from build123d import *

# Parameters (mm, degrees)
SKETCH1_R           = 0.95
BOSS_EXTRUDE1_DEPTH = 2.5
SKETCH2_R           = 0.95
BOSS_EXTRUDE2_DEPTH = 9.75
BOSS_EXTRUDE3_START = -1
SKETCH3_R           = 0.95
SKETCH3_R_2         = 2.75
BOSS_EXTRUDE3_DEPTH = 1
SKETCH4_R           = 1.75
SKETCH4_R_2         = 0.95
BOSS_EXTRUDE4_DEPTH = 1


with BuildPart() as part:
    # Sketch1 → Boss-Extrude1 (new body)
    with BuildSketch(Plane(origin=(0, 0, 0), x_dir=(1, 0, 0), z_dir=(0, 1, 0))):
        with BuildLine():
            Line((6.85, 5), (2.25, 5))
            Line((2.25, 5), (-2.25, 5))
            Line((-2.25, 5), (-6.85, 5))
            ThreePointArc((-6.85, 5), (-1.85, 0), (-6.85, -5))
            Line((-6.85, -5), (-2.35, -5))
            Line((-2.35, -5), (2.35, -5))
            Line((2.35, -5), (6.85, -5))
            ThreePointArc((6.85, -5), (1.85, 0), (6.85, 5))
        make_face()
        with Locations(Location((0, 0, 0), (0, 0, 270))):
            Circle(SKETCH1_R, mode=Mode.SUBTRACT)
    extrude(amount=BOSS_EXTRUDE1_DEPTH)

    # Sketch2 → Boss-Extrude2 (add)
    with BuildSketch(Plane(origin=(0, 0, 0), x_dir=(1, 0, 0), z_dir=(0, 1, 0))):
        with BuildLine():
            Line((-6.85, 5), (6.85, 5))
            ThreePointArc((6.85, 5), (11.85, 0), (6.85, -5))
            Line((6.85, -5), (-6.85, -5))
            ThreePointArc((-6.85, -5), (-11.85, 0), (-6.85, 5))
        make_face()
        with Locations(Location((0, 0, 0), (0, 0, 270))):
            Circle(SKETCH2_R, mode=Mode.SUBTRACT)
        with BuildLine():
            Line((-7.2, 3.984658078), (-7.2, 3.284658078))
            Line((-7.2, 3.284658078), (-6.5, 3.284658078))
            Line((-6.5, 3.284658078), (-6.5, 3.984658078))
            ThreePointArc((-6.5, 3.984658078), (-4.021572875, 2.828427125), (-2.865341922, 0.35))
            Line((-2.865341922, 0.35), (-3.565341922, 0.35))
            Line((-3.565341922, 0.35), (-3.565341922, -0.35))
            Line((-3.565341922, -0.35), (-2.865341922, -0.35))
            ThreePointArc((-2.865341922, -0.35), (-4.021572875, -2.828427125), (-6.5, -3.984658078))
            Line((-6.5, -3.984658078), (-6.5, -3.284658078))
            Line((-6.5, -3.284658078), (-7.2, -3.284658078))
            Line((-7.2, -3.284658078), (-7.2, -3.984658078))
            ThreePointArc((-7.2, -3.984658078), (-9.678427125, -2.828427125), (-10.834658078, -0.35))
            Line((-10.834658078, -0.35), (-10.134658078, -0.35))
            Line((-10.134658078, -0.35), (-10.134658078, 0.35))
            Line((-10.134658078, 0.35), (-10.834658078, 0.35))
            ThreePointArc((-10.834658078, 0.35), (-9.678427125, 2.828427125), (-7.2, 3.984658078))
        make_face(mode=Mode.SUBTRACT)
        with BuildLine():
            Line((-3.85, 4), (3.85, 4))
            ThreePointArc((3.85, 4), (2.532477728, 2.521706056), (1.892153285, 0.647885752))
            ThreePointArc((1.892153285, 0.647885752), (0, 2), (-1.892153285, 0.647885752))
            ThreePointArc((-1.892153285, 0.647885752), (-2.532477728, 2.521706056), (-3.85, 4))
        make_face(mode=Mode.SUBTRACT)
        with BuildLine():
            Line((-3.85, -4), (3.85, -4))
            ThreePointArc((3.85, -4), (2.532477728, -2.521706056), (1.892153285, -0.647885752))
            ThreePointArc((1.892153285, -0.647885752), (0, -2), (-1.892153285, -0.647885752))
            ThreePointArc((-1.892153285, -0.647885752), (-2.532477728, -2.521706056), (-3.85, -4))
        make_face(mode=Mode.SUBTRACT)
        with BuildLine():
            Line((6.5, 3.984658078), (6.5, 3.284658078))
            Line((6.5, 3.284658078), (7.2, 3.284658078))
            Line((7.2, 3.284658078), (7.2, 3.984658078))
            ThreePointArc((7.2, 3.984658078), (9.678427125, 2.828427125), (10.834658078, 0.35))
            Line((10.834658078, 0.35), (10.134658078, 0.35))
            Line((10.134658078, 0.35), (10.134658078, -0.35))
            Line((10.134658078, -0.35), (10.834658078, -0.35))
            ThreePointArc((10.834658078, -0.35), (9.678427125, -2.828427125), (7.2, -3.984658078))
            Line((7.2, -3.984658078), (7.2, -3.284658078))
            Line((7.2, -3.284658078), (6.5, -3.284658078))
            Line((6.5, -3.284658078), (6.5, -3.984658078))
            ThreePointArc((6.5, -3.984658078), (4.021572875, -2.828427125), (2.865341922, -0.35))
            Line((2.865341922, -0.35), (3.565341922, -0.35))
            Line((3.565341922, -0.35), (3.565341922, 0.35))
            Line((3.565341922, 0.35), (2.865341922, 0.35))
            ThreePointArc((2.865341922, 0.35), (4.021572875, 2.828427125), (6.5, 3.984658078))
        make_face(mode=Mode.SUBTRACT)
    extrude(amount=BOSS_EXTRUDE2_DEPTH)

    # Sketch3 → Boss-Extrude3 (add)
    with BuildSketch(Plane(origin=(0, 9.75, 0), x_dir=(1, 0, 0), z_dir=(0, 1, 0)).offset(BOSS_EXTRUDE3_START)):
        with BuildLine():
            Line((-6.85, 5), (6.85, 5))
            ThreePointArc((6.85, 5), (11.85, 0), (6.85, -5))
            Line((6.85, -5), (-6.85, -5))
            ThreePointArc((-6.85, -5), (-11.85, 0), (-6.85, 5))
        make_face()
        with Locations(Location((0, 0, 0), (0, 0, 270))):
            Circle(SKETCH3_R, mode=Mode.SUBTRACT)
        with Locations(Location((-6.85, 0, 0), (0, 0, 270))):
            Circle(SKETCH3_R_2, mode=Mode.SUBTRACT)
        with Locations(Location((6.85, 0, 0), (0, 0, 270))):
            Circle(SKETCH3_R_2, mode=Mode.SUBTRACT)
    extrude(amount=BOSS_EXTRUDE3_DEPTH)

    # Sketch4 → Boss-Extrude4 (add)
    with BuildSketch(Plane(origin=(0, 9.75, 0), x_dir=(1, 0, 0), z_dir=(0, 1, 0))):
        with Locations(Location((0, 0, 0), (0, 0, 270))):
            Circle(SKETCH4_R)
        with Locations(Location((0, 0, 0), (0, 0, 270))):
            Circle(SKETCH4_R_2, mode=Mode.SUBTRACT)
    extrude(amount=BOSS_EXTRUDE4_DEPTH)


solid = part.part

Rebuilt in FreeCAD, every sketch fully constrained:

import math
import FreeCAD as App
import Part
import Sketcher
from FreeCAD import Vector
Q = App.Units.Quantity

doc = App.newDocument("Part")
body = doc.addObject("PartDesign::Body", "Body")

# Sketch on XZ plane
sketch1 = body.newObject("Sketcher::SketchObject", "Sketch")
sketch1.AttachmentSupport = (doc.getObject("XZ_Plane"), [""])
sketch1.MapMode = "FlatFace"
sketch1.addGeometry(Part.LineSegment(Vector(6.8, -5, 0), Vector(-6.8, -5, 0)), False)
sketch1.addGeometry(Part.ArcOfCircle(Part.Circle(Vector(-6.8, 0, 0), Vector(0, 0, 1), 5), math.radians(-90), math.radians(90)), False)
sketch1.addGeometry(Part.LineSegment(Vector(-6.8, 5, 0), Vector(6.8, 5, 0)), False)
sketch1.addGeometry(Part.ArcOfCircle(Part.Circle(Vector(6.8, 0, 0), Vector(0, 0, 1), 5), math.radians(90), math.radians(270)), False)
sketch1.addGeometry(Part.Circle(Vector(0, 0, 0), Vector(0, 0, 1), 0.9), False)
sketch1.addConstraint(Sketcher.Constraint("Tangent", 0, 2, 1, 1))
sketch1.addConstraint(Sketcher.Constraint("Tangent", 1, 2, 2, 1))
sketch1.addConstraint(Sketcher.Constraint("Tangent", 2, 2, 3, 1))
sketch1.addConstraint(Sketcher.Constraint("Tangent", 3, 2, 0, 1))
sketch1.addConstraint(Sketcher.Constraint("Horizontal", 0))
sketch1.addConstraint(Sketcher.Constraint("Horizontal", 2))
sketch1.addConstraint(Sketcher.Constraint("Coincident", 4, 3, -1, 1))
sketch1.addConstraint(Sketcher.Constraint("Symmetric", 1, 3, 3, 3, -1, 1))
sketch1.addConstraint(Sketcher.Constraint("Radius", 1, Q("5 mm")))
sketch1.addConstraint(Sketcher.Constraint("Diameter", 4, Q("1.9 mm")))
sketch1.addConstraint(Sketcher.Constraint("DistanceX", 0, 2, 0, 1, Q("13.7 mm")))
pad1 = body.newObject("PartDesign::Pad", "Pad")
pad1.Profile = sketch1
pad1.Length = 2.5
pad1.Reversed = True

# Sketch on XZ plane
sketch2 = body.newObject("Sketcher::SketchObject", "Sketch001")
sketch2.AttachmentSupport = (doc.getObject("XZ_Plane"), [""])
sketch2.MapMode = "FlatFace"
sketch2.addGeometry(Part.LineSegment(Vector(6.8, -5, 0), Vector(-6.8, -5, 0)), False)
sketch2.addGeometry(Part.ArcOfCircle(Part.Circle(Vector(-6.8, 0, 0), Vector(0, 0, 1), 5), math.radians(90), math.radians(270)), False)
sketch2.addGeometry(Part.LineSegment(Vector(-6.8, 5, 0), Vector(6.8, 5, 0)), False)
sketch2.addGeometry(Part.ArcOfCircle(Part.Circle(Vector(6.8, 0, 0), Vector(0, 0, 1), 5), math.radians(-90), math.radians(90)), False)
sketch2.addGeometry(Part.ArcOfCircle(Part.Circle(Vector(-6.8, 0, 0), Vector(0, 0, 1), 5), math.radians(7), math.radians(53)), False)
sketch2.addGeometry(Part.ArcOfCircle(Part.Circle(Vector(0, 0, 0), Vector(0, 0, 1), 2), math.radians(19), math.radians(161)), False)
sketch2.addGeometry(Part.ArcOfCircle(Part.Circle(Vector(6.8, 0, 0), Vector(0, 0, 1), 5), math.radians(127), math.radians(173)), False)
sketch2.addGeometry(Part.LineSegment(Vector(3.9, 4, 0), Vector(-3.9, 4, 0)), False)
sketch2.addGeometry(Part.LineSegment(Vector(6.5, -4, 0), Vector(6.5, -3.3, 0)), False)
sketch2.addGeometry(Part.LineSegment(Vector(6.5, -3.3, 0), Vector(7.2, -3.3, 0)), False)
sketch2.addGeometry(Part.LineSegment(Vector(7.2, -3.3, 0), Vector(7.2, -4, 0)), False)
sketch2.addGeometry(Part.ArcOfCircle(Part.Circle(Vector(6.9, 0, 0), Vector(0, 0, 1), 4), math.radians(-85), math.radians(-5)), False)
sketch2.addGeometry(Part.LineSegment(Vector(10.8, -0.3, 0), Vector(10.1, -0.3, 0)), False)
sketch2.addGeometry(Part.LineSegment(Vector(10.1, -0.3, 0), Vector(10.1, 0.3, 0)), False)
sketch2.addGeometry(Part.LineSegment(Vector(10.1, 0.3, 0), Vector(10.8, 0.3, 0)), False)
sketch2.addGeometry(Part.ArcOfCircle(Part.Circle(Vector(6.9, 0, 0), Vector(0, 0, 1), 4), math.radians(5), math.radians(85)), False)
sketch2.addGeometry(Part.LineSegment(Vector(7.2, 4, 0), Vector(7.2, 3.3, 0)), False)
sketch2.addGeometry(Part.LineSegment(Vector(7.2, 3.3, 0), Vector(6.5, 3.3, 0)), False)
sketch2.addGeometry(Part.LineSegment(Vector(6.5, 3.3, 0), Vector(6.5, 4, 0)), False)
sketch2.addGeometry(Part.ArcOfCircle(Part.Circle(Vector(6.8, 0, 0), Vector(0, 0, 1), 4), math.radians(95), math.radians(175)), False)
sketch2.addGeometry(Part.LineSegment(Vector(2.9, 0.3, 0), Vector(3.6, 0.3, 0)), False)
sketch2.addGeometry(Part.LineSegment(Vector(3.6, 0.3, 0), Vector(3.6, -0.3, 0)), False)
sketch2.addGeometry(Part.LineSegment(Vector(3.6, -0.3, 0), Vector(2.9, -0.3, 0)), False)
sketch2.addGeometry(Part.ArcOfCircle(Part.Circle(Vector(6.8, 0, 0), Vector(0, 0, 1), 4), math.radians(-175), math.radians(-95)), False)
sketch2.addGeometry(Part.Circle(Vector(0, 0, 0), Vector(0, 0, 1), 0.9), False)
sketch2.addGeometry(Part.LineSegment(Vector(-7.2, -4, 0), Vector(-7.2, -3.3, 0)), False)
sketch2.addGeometry(Part.LineSegment(Vector(-7.2, -3.3, 0), Vector(-6.5, -3.3, 0)), False)
sketch2.addGeometry(Part.LineSegment(Vector(-6.5, -3.3, 0), Vector(-6.5, -4, 0)), False)
sketch2.addGeometry(Part.ArcOfCircle(Part.Circle(Vector(-6.8, 0, 0), Vector(0, 0, 1), 4), math.radians(-85), math.radians(-5)), False)
sketch2.addGeometry(Part.LineSegment(Vector(-2.9, -0.3, 0), Vector(-3.6, -0.3, 0)), False)
sketch2.addGeometry(Part.LineSegment(Vector(-3.6, -0.3, 0), Vector(-3.6, 0.3, 0)), False)
sketch2.addGeometry(Part.LineSegment(Vector(-3.6, 0.3, 0), Vector(-2.9, 0.3, 0)), False)
sketch2.addGeometry(Part.ArcOfCircle(Part.Circle(Vector(-6.8, 0, 0), Vector(0, 0, 1), 4), math.radians(5), math.radians(85)), False)
sketch2.addGeometry(Part.LineSegment(Vector(-6.5, 4, 0), Vector(-6.5, 3.3, 0)), False)
sketch2.addGeometry(Part.LineSegment(Vector(-6.5, 3.3, 0), Vector(-7.2, 3.3, 0)), False)
sketch2.addGeometry(Part.LineSegment(Vector(-7.2, 3.3, 0), Vector(-7.2, 4, 0)), False)
sketch2.addGeometry(Part.ArcOfCircle(Part.Circle(Vector(-6.9, 0, 0), Vector(0, 0, 1), 4), math.radians(95), math.radians(175)), False)
sketch2.addGeometry(Part.LineSegment(Vector(-10.8, 0.3, 0), Vector(-10.1, 0.3, 0)), False)
sketch2.addGeometry(Part.LineSegment(Vector(-10.1, 0.3, 0), Vector(-10.1, -0.3, 0)), False)
sketch2.addGeometry(Part.LineSegment(Vector(-10.1, -0.3, 0), Vector(-10.8, -0.3, 0)), False)
sketch2.addGeometry(Part.ArcOfCircle(Part.Circle(Vector(-6.9, 0, 0), Vector(0, 0, 1), 4), math.radians(-175), math.radians(-95)), False)
sketch2.addGeometry(Part.LineSegment(Vector(-3.9, -4, 0), Vector(3.9, -4, 0)), False)
sketch2.addGeometry(Part.ArcOfCircle(Part.Circle(Vector(6.8, 0, 0), Vector(0, 0, 1), 5), math.radians(-173), math.radians(-127)), False)
sketch2.addGeometry(Part.ArcOfCircle(Part.Circle(Vector(0, 0, 0), Vector(0, 0, 1), 2), math.radians(-161), math.radians(-19)), False)
sketch2.addGeometry(Part.ArcOfCircle(Part.Circle(Vector(-6.8, 0, 0), Vector(0, 0, 1), 5), math.radians(-53), math.radians(-7)), False)
sketch2.addConstraint(Sketcher.Constraint("Tangent", 0, 2, 1, 2))
sketch2.addConstraint(Sketcher.Constraint("Tangent", 1, 1, 2, 1))
sketch2.addConstraint(Sketcher.Constraint("Tangent", 2, 2, 3, 2))
sketch2.addConstraint(Sketcher.Constraint("Tangent", 3, 1, 0, 1))
sketch2.addConstraint(Sketcher.Constraint("Coincident", 4, 1, 5, 2))
sketch2.addConstraint(Sketcher.Constraint("Coincident", 5, 1, 6, 2))
sketch2.addConstraint(Sketcher.Constraint("Coincident", 6, 1, 7, 1))
sketch2.addConstraint(Sketcher.Constraint("Coincident", 7, 2, 4, 2))
sketch2.addConstraint(Sketcher.Constraint("Coincident", 8, 2, 9, 1))
sketch2.addConstraint(Sketcher.Constraint("Coincident", 9, 2, 10, 1))
sketch2.addConstraint(Sketcher.Constraint("Coincident", 10, 2, 11, 1))
sketch2.addConstraint(Sketcher.Constraint("Coincident", 11, 2, 12, 1))
sketch2.addConstraint(Sketcher.Constraint("Coincident", 12, 2, 13, 1))
sketch2.addConstraint(Sketcher.Constraint("Coincident", 13, 2, 14, 1))
sketch2.addConstraint(Sketcher.Constraint("Coincident", 14, 2, 15, 1))
sketch2.addConstraint(Sketcher.Constraint("Coincident", 15, 2, 16, 1))
sketch2.addConstraint(Sketcher.Constraint("Coincident", 16, 2, 17, 1))
sketch2.addConstraint(Sketcher.Constraint("Coincident", 17, 2, 18, 1))
sketch2.addConstraint(Sketcher.Constraint("Coincident", 18, 2, 19, 1))
sketch2.addConstraint(Sketcher.Constraint("Coincident", 19, 2, 20, 1))
sketch2.addConstraint(Sketcher.Constraint("Coincident", 20, 2, 21, 1))
sketch2.addConstraint(Sketcher.Constraint("Coincident", 21, 2, 22, 1))
sketch2.addConstraint(Sketcher.Constraint("Coincident", 22, 2, 23, 1))
sketch2.addConstraint(Sketcher.Constraint("Coincident", 23, 2, 8, 1))
sketch2.addConstraint(Sketcher.Constraint("Coincident", 25, 2, 26, 1))
sketch2.addConstraint(Sketcher.Constraint("Coincident", 26, 2, 27, 1))
sketch2.addConstraint(Sketcher.Constraint("Coincident", 27, 2, 28, 1))
sketch2.addConstraint(Sketcher.Constraint("Coincident", 28, 2, 29, 1))
sketch2.addConstraint(Sketcher.Constraint("Coincident", 29, 2, 30, 1))
sketch2.addConstraint(Sketcher.Constraint("Coincident", 30, 2, 31, 1))
sketch2.addConstraint(Sketcher.Constraint("Coincident", 31, 2, 32, 1))
sketch2.addConstraint(Sketcher.Constraint("Coincident", 32, 2, 33, 1))
sketch2.addConstraint(Sketcher.Constraint("Coincident", 33, 2, 34, 1))
sketch2.addConstraint(Sketcher.Constraint("Coincident", 34, 2, 35, 1))
sketch2.addConstraint(Sketcher.Constraint("Coincident", 35, 2, 36, 1))
sketch2.addConstraint(Sketcher.Constraint("Coincident", 36, 2, 37, 1))
sketch2.addConstraint(Sketcher.Constraint("Coincident", 37, 2, 38, 1))
sketch2.addConstraint(Sketcher.Constraint("Coincident", 38, 2, 39, 1))
sketch2.addConstraint(Sketcher.Constraint("Coincident", 39, 2, 40, 1))
sketch2.addConstraint(Sketcher.Constraint("Coincident", 40, 2, 25, 1))
sketch2.addConstraint(Sketcher.Constraint("Coincident", 41, 2, 42, 2))
sketch2.addConstraint(Sketcher.Constraint("Coincident", 42, 1, 43, 2))
sketch2.addConstraint(Sketcher.Constraint("Coincident", 43, 1, 44, 2))
sketch2.addConstraint(Sketcher.Constraint("Coincident", 44, 1, 41, 1))
sketch2.addConstraint(Sketcher.Constraint("Horizontal", 0))
sketch2.addConstraint(Sketcher.Constraint("Horizontal", 2))
sketch2.addConstraint(Sketcher.Constraint("Horizontal", 7))
sketch2.addConstraint(Sketcher.Constraint("Vertical", 8))
sketch2.addConstraint(Sketcher.Constraint("Horizontal", 9))
sketch2.addConstraint(Sketcher.Constraint("Vertical", 10))
sketch2.addConstraint(Sketcher.Constraint("Horizontal", 12))
sketch2.addConstraint(Sketcher.Constraint("Vertical", 13))
sketch2.addConstraint(Sketcher.Constraint("Horizontal", 14))
sketch2.addConstraint(Sketcher.Constraint("Vertical", 16))
sketch2.addConstraint(Sketcher.Constraint("Horizontal", 17))
sketch2.addConstraint(Sketcher.Constraint("Vertical", 18))
sketch2.addConstraint(Sketcher.Constraint("Horizontal", 20))
sketch2.addConstraint(Sketcher.Constraint("Vertical", 21))
sketch2.addConstraint(Sketcher.Constraint("Horizontal", 22))
sketch2.addConstraint(Sketcher.Constraint("Vertical", 25))
sketch2.addConstraint(Sketcher.Constraint("Horizontal", 26))
sketch2.addConstraint(Sketcher.Constraint("Vertical", 27))
sketch2.addConstraint(Sketcher.Constraint("Horizontal", 29))
sketch2.addConstraint(Sketcher.Constraint("Vertical", 30))
sketch2.addConstraint(Sketcher.Constraint("Horizontal", 31))
sketch2.addConstraint(Sketcher.Constraint("Vertical", 33))
sketch2.addConstraint(Sketcher.Constraint("Horizontal", 34))
sketch2.addConstraint(Sketcher.Constraint("Vertical", 35))
sketch2.addConstraint(Sketcher.Constraint("Horizontal", 37))
sketch2.addConstraint(Sketcher.Constraint("Vertical", 38))
sketch2.addConstraint(Sketcher.Constraint("Horizontal", 39))
sketch2.addConstraint(Sketcher.Constraint("Horizontal", 41))
sketch2.addConstraint(Sketcher.Constraint("Coincident", 5, 3, -1, 1))
sketch2.addConstraint(Sketcher.Constraint("Coincident", 24, 3, -1, 1))
sketch2.addConstraint(Sketcher.Constraint("Coincident", 43, 3, -1, 1))
sketch2.addConstraint(Sketcher.Constraint("Coincident", 4, 3, 1, 3))
sketch2.addConstraint(Sketcher.Constraint("Coincident", 6, 3, 3, 3))
sketch2.addConstraint(Sketcher.Constraint("Coincident", 11, 3, 3, 3))
sketch2.addConstraint(Sketcher.Constraint("Coincident", 15, 3, 3, 3))
sketch2.addConstraint(Sketcher.Constraint("Coincident", 19, 3, 3, 3))
sketch2.addConstraint(Sketcher.Constraint("Coincident", 23, 3, 3, 3))
sketch2.addConstraint(Sketcher.Constraint("Coincident", 28, 3, 1, 3))
sketch2.addConstraint(Sketcher.Constraint("Coincident", 32, 3, 1, 3))
sketch2.addConstraint(Sketcher.Constraint("Coincident", 36, 3, 1, 3))
sketch2.addConstraint(Sketcher.Constraint("Coincident", 40, 3, 1, 3))
sketch2.addConstraint(Sketcher.Constraint("Coincident", 42, 3, 3, 3))
sketch2.addConstraint(Sketcher.Constraint("Coincident", 44, 3, 1, 3))
sketch2.addConstraint(Sketcher.Constraint("Equal", 3, 4))
sketch2.addConstraint(Sketcher.Constraint("Equal", 4, 6))
sketch2.addConstraint(Sketcher.Constraint("Equal", 11, 15))
sketch2.addConstraint(Sketcher.Constraint("Equal", 15, 19))
sketch2.addConstraint(Sketcher.Constraint("Equal", 19, 23))
sketch2.addConstraint(Sketcher.Constraint("Equal", 23, 28))
sketch2.addConstraint(Sketcher.Constraint("Equal", 28, 32))
sketch2.addConstraint(Sketcher.Constraint("Equal", 32, 36))
sketch2.addConstraint(Sketcher.Constraint("Equal", 36, 40))
sketch2.addConstraint(Sketcher.Constraint("Equal", 6, 42))
sketch2.addConstraint(Sketcher.Constraint("Equal", 5, 43))
sketch2.addConstraint(Sketcher.Constraint("Equal", 42, 44))
sketch2.addConstraint(Sketcher.Constraint("Symmetric", 1, 3, 3, 3, -1, 1))
sketch2.addConstraint(Sketcher.Constraint("Symmetric", 16, 2, 25, 2, -1, 1))
sketch2.addConstraint(Sketcher.Constraint("Symmetric", 20, 2, 29, 2, -1, 1))
sketch2.addConstraint(Sketcher.Constraint("Symmetric", 8, 2, 33, 2, -1, 1))
sketch2.addConstraint(Sketcher.Constraint("Symmetric", 12, 2, 37, 2, -1, 1))
sketch2.addConstraint(Sketcher.Constraint("Symmetric", 9, 2, 25, 2, -2))
sketch2.addConstraint(Sketcher.Constraint("Horizontal", 15, 2, 18, 2))
sketch2.addConstraint(Sketcher.Constraint("Horizontal", 14, 2, 19, 2))
sketch2.addConstraint(Sketcher.Constraint("Horizontal", 12, 2, 21, 2))
sketch2.addConstraint(Sketcher.Constraint("Horizontal", 10, 2, 23, 2))
sketch2.addConstraint(Sketcher.Constraint("Horizontal", 23, 2, 27, 2))
sketch2.addConstraint(Sketcher.Constraint("Horizontal", 22, 2, 28, 2))
sketch2.addConstraint(Sketcher.Constraint("Horizontal", 20, 2, 30, 2))
sketch2.addConstraint(Sketcher.Constraint("Horizontal", 32, 2, 35, 2))
sketch2.addConstraint(Sketcher.Constraint("Horizontal", 29, 2, 38, 2))
sketch2.addConstraint(Sketcher.Constraint("Vertical", 6, 1, 41, 2))
sketch2.addConstraint(Sketcher.Constraint("Equal", 9, 12))
sketch2.addConstraint(Sketcher.Constraint("Equal", 17, 20))
sketch2.addConstraint(Sketcher.Constraint("Equal", 39, 8))
sketch2.addConstraint(Sketcher.Constraint("Equal", 10, 13))
sketch2.addConstraint(Sketcher.Constraint("Radius", 1, Q("5 mm")))
sketch2.addConstraint(Sketcher.Constraint("Radius", 5, Q("2 mm")))
sketch2.addConstraint(Sketcher.Constraint("Radius", 11, Q("4 mm")))
sketch2.addConstraint(Sketcher.Constraint("Diameter", 24, Q("1.9 mm")))
sketch2.addConstraint(Sketcher.Constraint("DistanceX", 0, 2, 0, 1, Q("13.7 mm")))
sketch2.addConstraint(Sketcher.Constraint("DistanceX", 7, 2, 7, 1, Q("7.7 mm")))
sketch2.addConstraint(Sketcher.Constraint("DistanceX", 9, 1, 9, 2, Q("0.7 mm")))
pad2 = body.newObject("PartDesign::Pad", "Pad001")
pad2.Profile = sketch2
pad2.Length = 9.75
pad2.Reversed = True

# Sketch on XZ plane
sketch3 = body.newObject("Sketcher::SketchObject", "Sketch002")
sketch3.AttachmentSupport = (doc.getObject("XZ_Plane"), [""])
sketch3.MapMode = "FlatFace"
sketch3.AttachmentOffset = App.Placement(Vector(0, 0, -8.75), App.Rotation())
sketch3.addGeometry(Part.LineSegment(Vector(6.8, -5, 0), Vector(-6.8, -5, 0)), False)
sketch3.addGeometry(Part.ArcOfCircle(Part.Circle(Vector(-6.8, 0, 0), Vector(0, 0, 1), 5), math.radians(90), math.radians(270)), False)
sketch3.addGeometry(Part.LineSegment(Vector(-6.8, 5, 0), Vector(6.8, 5, 0)), False)
sketch3.addGeometry(Part.ArcOfCircle(Part.Circle(Vector(6.8, 0, 0), Vector(0, 0, 1), 5), math.radians(-90), math.radians(90)), False)
sketch3.addGeometry(Part.Circle(Vector(6.8, 0, 0), Vector(0, 0, 1), 2.8), False)
sketch3.addGeometry(Part.Circle(Vector(0, 0, 0), Vector(0, 0, 1), 0.9), False)
sketch3.addGeometry(Part.Circle(Vector(-6.8, 0, 0), Vector(0, 0, 1), 2.8), False)
sketch3.addConstraint(Sketcher.Constraint("Tangent", 0, 2, 1, 2))
sketch3.addConstraint(Sketcher.Constraint("Tangent", 1, 1, 2, 1))
sketch3.addConstraint(Sketcher.Constraint("Tangent", 2, 2, 3, 2))
sketch3.addConstraint(Sketcher.Constraint("Tangent", 3, 1, 0, 1))
sketch3.addConstraint(Sketcher.Constraint("Horizontal", 0))
sketch3.addConstraint(Sketcher.Constraint("Horizontal", 2))
sketch3.addConstraint(Sketcher.Constraint("Coincident", 5, 3, -1, 1))
sketch3.addConstraint(Sketcher.Constraint("Coincident", 4, 3, 3, 3))
sketch3.addConstraint(Sketcher.Constraint("Coincident", 6, 3, 1, 3))
sketch3.addConstraint(Sketcher.Constraint("Equal", 4, 6))
sketch3.addConstraint(Sketcher.Constraint("Symmetric", 1, 3, 3, 3, -1, 1))
sketch3.addConstraint(Sketcher.Constraint("Radius", 1, Q("5 mm")))
sketch3.addConstraint(Sketcher.Constraint("Diameter", 4, Q("5.5 mm")))
sketch3.addConstraint(Sketcher.Constraint("Diameter", 5, Q("1.9 mm")))
sketch3.addConstraint(Sketcher.Constraint("DistanceX", 0, 2, 0, 1, Q("13.7 mm")))
pad3 = body.newObject("PartDesign::Pad", "Pad002")
pad3.Profile = sketch3
pad3.Length = 1
pad3.Reversed = True

# Sketch on XZ plane
sketch4 = body.newObject("Sketcher::SketchObject", "Sketch003")
sketch4.AttachmentSupport = (doc.getObject("XZ_Plane"), [""])
sketch4.MapMode = "FlatFace"
sketch4.AttachmentOffset = App.Placement(Vector(0, 0, -9.75), App.Rotation())
sketch4.addGeometry(Part.Circle(Vector(0, 0, 0), Vector(0, 0, 1), 1.8), False)
sketch4.addGeometry(Part.Circle(Vector(0, 0, 0), Vector(0, 0, 1), 0.9), False)
sketch4.addConstraint(Sketcher.Constraint("Coincident", 0, 3, -1, 1))
sketch4.addConstraint(Sketcher.Constraint("Coincident", 1, 3, -1, 1))
sketch4.addConstraint(Sketcher.Constraint("Diameter", 0, Q("3.5 mm")))
sketch4.addConstraint(Sketcher.Constraint("Diameter", 1, Q("1.9 mm")))
pad4 = body.newObject("PartDesign::Pad", "Pad003")
pad4.Profile = sketch4
pad4.Length = 1
pad4.Reversed = True

doc.recompute()
